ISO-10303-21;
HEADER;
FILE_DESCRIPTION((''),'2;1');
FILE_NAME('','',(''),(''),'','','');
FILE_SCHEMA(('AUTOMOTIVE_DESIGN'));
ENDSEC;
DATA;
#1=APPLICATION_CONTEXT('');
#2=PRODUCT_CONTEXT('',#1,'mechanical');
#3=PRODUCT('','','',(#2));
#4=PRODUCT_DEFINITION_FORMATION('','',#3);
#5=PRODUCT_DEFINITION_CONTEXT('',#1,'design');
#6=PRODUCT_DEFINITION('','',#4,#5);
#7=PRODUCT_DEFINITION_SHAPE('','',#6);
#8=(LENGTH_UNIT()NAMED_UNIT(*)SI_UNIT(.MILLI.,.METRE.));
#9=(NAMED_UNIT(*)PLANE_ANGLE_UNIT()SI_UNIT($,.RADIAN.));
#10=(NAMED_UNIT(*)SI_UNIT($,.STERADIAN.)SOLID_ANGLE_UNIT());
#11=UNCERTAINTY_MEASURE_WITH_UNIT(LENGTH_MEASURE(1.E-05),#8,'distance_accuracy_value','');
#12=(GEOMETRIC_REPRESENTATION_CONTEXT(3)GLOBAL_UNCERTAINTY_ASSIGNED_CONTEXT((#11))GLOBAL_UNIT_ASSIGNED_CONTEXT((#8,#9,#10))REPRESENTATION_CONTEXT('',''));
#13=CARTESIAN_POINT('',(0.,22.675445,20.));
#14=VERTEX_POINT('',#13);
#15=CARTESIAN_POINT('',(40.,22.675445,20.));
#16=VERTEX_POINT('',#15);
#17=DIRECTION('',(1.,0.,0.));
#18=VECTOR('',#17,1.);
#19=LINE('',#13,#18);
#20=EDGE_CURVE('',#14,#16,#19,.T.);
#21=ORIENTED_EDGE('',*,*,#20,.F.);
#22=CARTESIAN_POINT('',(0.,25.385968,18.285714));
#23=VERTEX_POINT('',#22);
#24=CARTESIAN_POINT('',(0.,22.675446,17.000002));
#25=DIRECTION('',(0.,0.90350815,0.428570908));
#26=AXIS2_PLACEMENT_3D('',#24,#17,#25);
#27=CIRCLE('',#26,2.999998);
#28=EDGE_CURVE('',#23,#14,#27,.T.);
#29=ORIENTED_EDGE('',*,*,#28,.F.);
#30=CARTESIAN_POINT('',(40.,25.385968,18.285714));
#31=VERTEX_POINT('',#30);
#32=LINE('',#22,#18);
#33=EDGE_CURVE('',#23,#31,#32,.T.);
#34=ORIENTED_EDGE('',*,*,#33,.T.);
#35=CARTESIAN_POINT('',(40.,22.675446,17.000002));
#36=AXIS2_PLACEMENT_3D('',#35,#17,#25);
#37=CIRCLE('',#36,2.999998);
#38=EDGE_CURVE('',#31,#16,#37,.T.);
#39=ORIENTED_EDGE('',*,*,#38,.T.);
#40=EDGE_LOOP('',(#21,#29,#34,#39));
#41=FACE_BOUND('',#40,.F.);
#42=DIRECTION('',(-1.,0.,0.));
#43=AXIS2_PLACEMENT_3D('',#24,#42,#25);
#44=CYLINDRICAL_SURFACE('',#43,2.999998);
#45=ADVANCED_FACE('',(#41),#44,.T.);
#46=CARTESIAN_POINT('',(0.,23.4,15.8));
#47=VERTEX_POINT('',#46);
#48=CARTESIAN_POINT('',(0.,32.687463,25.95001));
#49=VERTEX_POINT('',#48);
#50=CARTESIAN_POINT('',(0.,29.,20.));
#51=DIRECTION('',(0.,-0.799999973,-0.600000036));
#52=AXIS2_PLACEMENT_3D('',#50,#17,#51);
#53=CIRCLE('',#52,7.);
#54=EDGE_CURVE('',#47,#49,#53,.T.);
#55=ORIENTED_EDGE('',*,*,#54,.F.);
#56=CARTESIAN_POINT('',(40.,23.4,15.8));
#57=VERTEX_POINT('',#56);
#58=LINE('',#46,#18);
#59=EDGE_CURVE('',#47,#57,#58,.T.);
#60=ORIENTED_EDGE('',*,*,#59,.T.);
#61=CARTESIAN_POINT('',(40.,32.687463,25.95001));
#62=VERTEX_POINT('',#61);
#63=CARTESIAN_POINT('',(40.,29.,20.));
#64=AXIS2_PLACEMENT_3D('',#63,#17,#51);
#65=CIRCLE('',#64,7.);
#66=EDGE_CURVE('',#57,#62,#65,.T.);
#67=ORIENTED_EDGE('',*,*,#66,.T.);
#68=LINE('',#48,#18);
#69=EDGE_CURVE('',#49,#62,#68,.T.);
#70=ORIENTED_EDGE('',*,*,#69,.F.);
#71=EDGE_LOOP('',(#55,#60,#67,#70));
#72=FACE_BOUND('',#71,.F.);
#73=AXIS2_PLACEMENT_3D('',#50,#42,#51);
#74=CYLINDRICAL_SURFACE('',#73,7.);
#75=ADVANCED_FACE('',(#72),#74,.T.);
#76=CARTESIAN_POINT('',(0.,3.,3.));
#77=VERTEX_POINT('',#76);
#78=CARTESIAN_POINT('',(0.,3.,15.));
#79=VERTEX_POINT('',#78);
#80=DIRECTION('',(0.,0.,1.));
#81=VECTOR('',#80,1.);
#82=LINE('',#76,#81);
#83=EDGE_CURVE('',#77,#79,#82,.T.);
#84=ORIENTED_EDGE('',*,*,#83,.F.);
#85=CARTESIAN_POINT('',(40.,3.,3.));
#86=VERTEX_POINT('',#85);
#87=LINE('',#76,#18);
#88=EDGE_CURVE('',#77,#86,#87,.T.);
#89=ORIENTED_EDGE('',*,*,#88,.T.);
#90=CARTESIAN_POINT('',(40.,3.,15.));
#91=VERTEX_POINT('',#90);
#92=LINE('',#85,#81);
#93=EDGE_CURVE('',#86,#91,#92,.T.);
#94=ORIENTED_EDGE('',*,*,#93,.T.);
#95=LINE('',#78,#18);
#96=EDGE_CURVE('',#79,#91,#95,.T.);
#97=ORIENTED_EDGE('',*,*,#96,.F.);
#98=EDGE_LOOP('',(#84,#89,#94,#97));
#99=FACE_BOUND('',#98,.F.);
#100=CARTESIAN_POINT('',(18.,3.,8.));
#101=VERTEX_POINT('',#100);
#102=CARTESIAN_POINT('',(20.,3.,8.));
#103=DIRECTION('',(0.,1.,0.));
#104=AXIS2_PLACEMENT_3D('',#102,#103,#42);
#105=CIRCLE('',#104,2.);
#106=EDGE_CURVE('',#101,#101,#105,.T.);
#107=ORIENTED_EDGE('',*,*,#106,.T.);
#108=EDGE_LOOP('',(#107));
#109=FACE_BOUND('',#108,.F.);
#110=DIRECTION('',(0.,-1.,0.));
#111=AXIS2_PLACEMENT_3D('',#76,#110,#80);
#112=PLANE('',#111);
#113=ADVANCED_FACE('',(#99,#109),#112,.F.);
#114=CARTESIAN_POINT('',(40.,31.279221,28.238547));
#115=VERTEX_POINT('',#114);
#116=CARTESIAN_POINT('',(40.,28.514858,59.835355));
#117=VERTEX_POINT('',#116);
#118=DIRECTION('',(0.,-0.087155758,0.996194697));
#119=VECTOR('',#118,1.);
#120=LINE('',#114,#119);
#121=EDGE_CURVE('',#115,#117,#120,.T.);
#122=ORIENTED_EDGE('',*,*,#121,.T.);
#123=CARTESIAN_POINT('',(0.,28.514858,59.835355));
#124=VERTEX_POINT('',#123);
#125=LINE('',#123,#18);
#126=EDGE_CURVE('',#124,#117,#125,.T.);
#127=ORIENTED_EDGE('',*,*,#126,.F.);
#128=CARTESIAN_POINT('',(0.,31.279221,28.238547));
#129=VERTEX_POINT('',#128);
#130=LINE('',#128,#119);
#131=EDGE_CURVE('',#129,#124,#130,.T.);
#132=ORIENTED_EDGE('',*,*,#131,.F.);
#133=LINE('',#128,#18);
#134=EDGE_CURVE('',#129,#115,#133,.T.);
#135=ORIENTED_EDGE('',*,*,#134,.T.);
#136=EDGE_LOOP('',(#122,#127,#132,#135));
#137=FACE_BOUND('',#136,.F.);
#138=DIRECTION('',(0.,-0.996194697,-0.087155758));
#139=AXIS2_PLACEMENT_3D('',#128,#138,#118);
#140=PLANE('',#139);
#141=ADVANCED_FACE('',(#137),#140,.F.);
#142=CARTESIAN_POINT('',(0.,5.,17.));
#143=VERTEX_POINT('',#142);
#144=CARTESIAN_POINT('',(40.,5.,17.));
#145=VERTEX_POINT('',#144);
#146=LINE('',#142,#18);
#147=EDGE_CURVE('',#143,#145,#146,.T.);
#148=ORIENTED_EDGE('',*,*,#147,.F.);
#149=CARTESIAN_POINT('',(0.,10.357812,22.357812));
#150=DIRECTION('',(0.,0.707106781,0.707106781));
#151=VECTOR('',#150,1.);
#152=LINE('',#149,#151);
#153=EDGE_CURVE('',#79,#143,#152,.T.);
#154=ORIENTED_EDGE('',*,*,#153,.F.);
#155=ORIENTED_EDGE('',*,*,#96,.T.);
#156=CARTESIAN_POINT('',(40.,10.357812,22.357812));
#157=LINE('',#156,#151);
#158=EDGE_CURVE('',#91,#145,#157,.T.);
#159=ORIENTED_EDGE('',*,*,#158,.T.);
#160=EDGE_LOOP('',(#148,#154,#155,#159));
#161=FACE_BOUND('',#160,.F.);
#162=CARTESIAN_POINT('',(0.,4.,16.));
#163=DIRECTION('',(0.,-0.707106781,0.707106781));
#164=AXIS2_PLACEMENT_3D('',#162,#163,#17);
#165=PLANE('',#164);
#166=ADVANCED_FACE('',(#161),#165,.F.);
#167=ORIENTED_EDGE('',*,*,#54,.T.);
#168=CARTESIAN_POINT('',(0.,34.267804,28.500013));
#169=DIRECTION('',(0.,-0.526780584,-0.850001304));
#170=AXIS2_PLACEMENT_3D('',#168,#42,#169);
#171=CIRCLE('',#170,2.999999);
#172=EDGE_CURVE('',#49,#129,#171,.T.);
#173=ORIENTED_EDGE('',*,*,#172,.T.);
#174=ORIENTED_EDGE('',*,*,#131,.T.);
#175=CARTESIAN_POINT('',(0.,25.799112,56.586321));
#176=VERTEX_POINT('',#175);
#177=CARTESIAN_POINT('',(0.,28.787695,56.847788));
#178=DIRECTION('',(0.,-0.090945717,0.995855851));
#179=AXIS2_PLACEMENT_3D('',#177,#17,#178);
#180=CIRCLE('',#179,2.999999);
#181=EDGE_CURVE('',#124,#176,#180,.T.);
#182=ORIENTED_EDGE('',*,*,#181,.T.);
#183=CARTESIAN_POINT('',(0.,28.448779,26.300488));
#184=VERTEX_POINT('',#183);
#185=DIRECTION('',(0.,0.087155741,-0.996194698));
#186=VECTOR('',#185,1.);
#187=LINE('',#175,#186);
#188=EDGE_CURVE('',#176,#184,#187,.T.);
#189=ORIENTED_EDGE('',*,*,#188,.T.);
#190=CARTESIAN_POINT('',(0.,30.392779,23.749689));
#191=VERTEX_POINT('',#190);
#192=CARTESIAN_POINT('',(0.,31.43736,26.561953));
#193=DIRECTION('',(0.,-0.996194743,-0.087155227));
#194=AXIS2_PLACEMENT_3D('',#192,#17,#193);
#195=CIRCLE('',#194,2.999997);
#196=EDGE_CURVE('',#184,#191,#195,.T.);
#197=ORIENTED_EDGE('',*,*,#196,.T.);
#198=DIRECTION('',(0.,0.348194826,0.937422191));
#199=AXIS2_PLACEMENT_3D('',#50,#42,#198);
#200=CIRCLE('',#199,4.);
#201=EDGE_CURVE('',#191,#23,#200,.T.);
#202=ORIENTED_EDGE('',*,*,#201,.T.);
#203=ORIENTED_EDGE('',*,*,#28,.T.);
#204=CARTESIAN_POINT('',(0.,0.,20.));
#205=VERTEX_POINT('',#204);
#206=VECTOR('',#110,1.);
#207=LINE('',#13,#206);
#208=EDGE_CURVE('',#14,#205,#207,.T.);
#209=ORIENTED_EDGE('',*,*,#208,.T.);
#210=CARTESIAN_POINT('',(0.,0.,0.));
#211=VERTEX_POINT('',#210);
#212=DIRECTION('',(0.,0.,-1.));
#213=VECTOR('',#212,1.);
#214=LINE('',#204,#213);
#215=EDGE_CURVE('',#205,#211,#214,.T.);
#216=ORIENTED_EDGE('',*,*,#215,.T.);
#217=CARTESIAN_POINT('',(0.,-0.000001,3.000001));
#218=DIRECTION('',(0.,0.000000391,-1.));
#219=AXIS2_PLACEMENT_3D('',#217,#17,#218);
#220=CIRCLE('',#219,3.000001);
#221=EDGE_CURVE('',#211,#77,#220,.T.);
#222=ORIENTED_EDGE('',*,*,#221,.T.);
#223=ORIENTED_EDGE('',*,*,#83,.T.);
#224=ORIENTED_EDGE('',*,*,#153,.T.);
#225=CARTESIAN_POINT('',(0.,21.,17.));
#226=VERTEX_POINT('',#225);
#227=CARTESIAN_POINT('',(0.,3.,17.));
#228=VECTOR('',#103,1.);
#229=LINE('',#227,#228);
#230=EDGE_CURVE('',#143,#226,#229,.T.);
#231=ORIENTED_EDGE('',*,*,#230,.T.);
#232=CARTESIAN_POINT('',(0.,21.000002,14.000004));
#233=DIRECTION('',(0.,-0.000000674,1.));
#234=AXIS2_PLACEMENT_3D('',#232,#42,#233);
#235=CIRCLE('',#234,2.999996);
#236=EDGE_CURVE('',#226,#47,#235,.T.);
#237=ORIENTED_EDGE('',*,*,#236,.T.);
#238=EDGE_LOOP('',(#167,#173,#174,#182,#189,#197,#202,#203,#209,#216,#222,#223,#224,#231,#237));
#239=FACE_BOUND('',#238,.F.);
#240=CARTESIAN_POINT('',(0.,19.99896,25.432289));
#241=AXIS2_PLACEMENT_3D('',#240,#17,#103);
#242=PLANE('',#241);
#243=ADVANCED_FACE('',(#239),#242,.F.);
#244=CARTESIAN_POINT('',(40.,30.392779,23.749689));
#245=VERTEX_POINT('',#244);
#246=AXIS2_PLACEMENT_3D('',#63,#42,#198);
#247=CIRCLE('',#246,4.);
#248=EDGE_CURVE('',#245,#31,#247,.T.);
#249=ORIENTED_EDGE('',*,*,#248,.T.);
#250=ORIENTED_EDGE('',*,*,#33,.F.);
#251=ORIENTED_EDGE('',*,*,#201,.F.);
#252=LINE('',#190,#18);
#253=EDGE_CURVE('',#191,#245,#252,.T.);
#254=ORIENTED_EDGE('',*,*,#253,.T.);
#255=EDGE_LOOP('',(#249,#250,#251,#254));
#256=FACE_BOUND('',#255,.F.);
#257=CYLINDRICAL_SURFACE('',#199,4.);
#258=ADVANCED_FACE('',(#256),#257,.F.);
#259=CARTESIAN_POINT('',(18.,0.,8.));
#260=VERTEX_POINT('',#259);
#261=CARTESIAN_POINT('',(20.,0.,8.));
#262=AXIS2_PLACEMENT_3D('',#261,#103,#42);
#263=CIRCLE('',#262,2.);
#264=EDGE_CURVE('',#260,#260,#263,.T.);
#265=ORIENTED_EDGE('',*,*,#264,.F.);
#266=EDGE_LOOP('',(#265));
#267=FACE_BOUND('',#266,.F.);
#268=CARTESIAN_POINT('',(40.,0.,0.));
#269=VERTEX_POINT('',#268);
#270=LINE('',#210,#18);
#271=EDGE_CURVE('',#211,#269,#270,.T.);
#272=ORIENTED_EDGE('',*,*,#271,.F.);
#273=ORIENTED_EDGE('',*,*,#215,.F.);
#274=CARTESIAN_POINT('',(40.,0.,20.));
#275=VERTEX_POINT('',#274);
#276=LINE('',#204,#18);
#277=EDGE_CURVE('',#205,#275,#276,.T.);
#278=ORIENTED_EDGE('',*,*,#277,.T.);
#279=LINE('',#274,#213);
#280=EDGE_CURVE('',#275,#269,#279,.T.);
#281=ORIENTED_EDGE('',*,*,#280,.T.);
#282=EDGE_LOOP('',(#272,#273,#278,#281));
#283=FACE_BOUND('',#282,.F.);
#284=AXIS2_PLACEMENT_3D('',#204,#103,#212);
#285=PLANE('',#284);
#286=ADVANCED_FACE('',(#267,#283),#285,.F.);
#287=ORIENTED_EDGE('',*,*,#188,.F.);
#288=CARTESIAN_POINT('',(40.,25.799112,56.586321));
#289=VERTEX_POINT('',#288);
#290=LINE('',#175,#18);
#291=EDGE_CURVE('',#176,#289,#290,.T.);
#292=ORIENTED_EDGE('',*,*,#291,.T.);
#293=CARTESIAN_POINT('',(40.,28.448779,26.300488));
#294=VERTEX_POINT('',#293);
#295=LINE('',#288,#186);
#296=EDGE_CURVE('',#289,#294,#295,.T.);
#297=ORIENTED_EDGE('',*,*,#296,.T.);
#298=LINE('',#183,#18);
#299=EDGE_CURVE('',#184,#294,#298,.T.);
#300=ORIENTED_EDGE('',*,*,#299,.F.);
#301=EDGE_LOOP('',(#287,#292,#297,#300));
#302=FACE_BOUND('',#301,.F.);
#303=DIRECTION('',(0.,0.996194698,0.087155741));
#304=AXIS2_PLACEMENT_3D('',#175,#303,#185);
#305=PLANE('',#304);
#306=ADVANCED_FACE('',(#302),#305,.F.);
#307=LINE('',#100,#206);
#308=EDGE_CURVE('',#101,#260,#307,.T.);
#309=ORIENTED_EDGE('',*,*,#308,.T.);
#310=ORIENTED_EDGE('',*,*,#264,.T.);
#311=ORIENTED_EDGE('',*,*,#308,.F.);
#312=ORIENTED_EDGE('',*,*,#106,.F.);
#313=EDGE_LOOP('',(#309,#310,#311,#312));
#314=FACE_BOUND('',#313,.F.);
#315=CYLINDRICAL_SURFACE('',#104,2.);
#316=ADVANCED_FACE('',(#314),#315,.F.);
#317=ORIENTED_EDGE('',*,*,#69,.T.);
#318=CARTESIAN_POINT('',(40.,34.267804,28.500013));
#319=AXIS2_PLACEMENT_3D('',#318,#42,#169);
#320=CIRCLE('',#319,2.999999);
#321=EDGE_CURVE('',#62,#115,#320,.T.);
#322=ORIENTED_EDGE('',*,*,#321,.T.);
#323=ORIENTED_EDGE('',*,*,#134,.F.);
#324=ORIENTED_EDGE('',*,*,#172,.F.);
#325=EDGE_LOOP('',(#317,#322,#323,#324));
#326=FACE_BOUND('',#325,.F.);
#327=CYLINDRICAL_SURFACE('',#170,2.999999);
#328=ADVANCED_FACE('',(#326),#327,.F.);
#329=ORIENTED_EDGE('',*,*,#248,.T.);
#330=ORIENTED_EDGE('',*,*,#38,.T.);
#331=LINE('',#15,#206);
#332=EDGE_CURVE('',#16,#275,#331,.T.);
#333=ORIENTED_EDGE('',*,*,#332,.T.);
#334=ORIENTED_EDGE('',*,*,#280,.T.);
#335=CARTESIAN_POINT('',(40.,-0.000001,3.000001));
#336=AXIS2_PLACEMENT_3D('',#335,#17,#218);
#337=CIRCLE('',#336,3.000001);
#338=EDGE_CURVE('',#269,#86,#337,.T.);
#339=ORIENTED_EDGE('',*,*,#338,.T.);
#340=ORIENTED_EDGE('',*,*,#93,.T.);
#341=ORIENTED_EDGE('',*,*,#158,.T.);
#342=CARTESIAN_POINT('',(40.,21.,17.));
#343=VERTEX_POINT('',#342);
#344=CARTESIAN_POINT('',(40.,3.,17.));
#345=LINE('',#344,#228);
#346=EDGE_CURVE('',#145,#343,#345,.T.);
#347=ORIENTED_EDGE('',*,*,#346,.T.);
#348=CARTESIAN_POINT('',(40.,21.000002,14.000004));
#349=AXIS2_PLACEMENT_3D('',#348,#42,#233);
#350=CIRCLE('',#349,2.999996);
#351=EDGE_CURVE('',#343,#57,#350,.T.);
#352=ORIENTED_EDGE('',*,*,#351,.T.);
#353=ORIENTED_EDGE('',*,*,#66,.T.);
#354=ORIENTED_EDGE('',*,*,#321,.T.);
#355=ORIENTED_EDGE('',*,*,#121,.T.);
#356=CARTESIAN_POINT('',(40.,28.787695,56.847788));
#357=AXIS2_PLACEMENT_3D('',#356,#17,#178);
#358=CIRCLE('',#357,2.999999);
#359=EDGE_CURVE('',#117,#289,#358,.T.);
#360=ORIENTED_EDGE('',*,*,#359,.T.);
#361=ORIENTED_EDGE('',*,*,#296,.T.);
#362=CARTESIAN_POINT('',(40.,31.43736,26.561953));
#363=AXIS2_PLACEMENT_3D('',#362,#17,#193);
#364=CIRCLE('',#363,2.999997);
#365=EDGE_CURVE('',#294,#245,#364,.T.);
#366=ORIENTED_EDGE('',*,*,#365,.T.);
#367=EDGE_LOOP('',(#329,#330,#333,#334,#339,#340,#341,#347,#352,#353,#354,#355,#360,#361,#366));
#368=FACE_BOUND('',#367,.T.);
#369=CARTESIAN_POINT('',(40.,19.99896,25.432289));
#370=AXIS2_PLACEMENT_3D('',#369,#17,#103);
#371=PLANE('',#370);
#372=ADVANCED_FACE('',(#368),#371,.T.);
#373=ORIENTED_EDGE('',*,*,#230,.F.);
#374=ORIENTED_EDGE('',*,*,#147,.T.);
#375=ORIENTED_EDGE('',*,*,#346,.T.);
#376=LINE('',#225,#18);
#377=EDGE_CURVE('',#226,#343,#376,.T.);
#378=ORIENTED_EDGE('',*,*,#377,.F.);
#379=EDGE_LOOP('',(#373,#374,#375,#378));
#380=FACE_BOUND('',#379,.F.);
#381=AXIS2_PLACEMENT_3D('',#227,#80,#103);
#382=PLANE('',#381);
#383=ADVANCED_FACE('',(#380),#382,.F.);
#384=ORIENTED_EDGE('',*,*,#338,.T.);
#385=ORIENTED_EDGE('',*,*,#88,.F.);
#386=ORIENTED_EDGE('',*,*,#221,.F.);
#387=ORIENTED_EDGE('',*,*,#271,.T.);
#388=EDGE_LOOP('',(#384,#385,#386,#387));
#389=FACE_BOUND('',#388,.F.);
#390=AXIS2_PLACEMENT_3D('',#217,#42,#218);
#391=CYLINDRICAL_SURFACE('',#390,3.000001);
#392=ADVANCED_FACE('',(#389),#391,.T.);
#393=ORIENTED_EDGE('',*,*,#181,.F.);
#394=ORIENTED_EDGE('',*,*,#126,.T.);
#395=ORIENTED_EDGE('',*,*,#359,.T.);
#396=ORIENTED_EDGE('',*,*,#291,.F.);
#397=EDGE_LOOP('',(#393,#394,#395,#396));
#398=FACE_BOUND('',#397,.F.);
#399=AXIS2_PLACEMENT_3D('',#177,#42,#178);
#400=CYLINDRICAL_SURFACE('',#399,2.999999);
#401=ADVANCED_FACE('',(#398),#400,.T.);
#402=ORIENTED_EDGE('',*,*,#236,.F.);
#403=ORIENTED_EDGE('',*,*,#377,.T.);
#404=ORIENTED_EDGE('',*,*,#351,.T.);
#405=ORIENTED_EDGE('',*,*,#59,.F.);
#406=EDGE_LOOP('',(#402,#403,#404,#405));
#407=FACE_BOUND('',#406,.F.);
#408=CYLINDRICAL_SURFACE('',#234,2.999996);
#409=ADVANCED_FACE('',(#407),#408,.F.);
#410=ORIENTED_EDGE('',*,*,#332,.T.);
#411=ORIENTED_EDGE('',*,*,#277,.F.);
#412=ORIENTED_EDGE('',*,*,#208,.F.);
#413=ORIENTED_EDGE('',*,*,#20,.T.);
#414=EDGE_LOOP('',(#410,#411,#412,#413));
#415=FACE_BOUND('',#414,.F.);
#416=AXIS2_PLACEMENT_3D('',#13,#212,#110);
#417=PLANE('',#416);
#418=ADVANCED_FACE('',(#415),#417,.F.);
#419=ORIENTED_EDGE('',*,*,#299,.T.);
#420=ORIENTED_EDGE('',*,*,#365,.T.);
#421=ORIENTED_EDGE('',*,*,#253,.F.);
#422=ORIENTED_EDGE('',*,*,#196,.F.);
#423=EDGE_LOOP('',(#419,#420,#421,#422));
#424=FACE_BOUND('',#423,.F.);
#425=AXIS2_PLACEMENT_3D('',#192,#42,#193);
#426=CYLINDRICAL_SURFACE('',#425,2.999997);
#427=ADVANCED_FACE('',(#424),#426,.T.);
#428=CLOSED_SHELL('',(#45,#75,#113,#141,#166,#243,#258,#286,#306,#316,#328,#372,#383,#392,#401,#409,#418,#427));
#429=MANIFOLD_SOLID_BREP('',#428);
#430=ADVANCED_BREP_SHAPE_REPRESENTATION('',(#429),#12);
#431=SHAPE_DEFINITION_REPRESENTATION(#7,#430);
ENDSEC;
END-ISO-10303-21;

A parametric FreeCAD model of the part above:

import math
import FreeCAD as App
import Part
import Sketcher

V = App.Vector
Q = App.Units.Quantity


def edges_at(feature, points):
    """Names of the edges that pass closest to the given points."""
    edges = feature.Shape.Edges
    near = lambda p: min(range(len(edges)), key=lambda i: edges[i].distToShape(Part.Vertex(*p))[0])
    return sorted({f"Edge{near(p) + 1}" for p in points})

doc = App.newDocument("Part")
params = doc.addObject("Spreadsheet::Sheet", "Params")
for row, (alias, value) in enumerate([
    ("sketch1_radius", "3.000001 mm"),
    ("sketch1_radius2", "7 mm"),
    ("sketch1_radius3", "2.999999 mm"),
    ("sketch1_radius4", "4 mm"),
    ("sketch1_width", "18 mm"),
    ("pad1_length", "40 mm"),
    ("sketch2_diameter", "4 mm"),
    ("pocket1_length", "9.6 mm"),
    ("chamfer_size", "2 mm"),
], start=1):
    params.set(f"A{row}", alias)
    params.set(f"B{row}", "=" + value)
    params.setAlias(f"B{row}", alias)

body = doc.addObject("PartDesign::Body", "Body")

# Sketch on YZ plane
sketch1 = body.newObject("Sketcher::SketchObject", "Sketch")
sketch1.AttachmentSupport = (doc.getObject("YZ_Plane"), [""])
sketch1.MapMode = "FlatFace"
sketch1.addGeometry([
    Part.LineSegment(V(0, 20, 0), V(0, 0, 0)),  # 0
    Part.ArcOfCircle(Part.Circle(V(0, 3, 0), V(0, 0, 1), 3), math.radians(-90), math.radians(0)),  # 1
    Part.LineSegment(V(3, 3, 0), V(3, 17, 0)),  # 2
    Part.LineSegment(V(3, 17, 0), V(21, 17, 0)),  # 3
    Part.ArcOfCircle(Part.Circle(V(21, 14, 0), V(0, 0, 1), 3), math.radians(37), math.radians(90)),  # 4
    Part.ArcOfCircle(Part.Circle(V(29, 20, 0), V(0, 0, 1), 7), math.radians(-143), math.radians(58)),  # 5
    Part.ArcOfCircle(Part.Circle(V(34.3, 28.5, 0), V(0, 0, 1), 3), math.radians(-175), math.radians(-122)),  # 6
    Part.LineSegment(V(31.3, 28.2, 0), V(28.5, 59.8, 0)),  # 7
    Part.ArcOfCircle(Part.Circle(V(28.8, 56.8, 0), V(0, 0, 1), 3), math.radians(95), math.radians(185)),  # 8
    Part.LineSegment(V(25.8, 56.6, 0), V(28.4, 26.3, 0)),  # 9
    Part.ArcOfCircle(Part.Circle(V(31.4, 26.6, 0), V(0, 0, 1), 3), math.radians(-175), math.radians(-110)),  # 10
    Part.ArcOfCircle(Part.Circle(V(29, 20, 0), V(0, 0, 1), 4), math.radians(-155), math.radians(70)),  # 11
    Part.ArcOfCircle(Part.Circle(V(22.7, 17, 0), V(0, 0, 1), 3), math.radians(25), math.radians(90)),  # 12
    Part.LineSegment(V(22.7, 20, 0), V(0, 20, 0)),  # 13
], False)
sketch1.addConstraint([
    Sketcher.Constraint("Coincident", 0, 2, 1, 1),
    Sketcher.Constraint("Tangent", 1, 2, 2, 1),
    Sketcher.Constraint("Coincident", 2, 2, 3, 1),
    Sketcher.Constraint("Tangent", 3, 2, 4, 2),
    Sketcher.Constraint("Tangent", 4, 1, 5, 1),
    Sketcher.Constraint("Tangent", 5, 2, 6, 2),
    Sketcher.Constraint("Tangent", 6, 1, 7, 1),
    Sketcher.Constraint("Coincident", 7, 2, 8, 1),
    Sketcher.Constraint("Tangent", 8, 2, 9, 1),
    Sketcher.Constraint("Tangent", 9, 2, 10, 1),
    Sketcher.Constraint("Tangent", 10, 2, 11, 2),
    Sketcher.Constraint("Tangent", 11, 1, 12, 1),
    Sketcher.Constraint("Tangent", 12, 2, 13, 1),
    Sketcher.Constraint("Coincident", 13, 2, 0, 1),
    Sketcher.Constraint("Vertical", 0),
    Sketcher.Constraint("Vertical", 2),
    Sketcher.Constraint("Horizontal", 3),
    Sketcher.Constraint("Horizontal", 13),
    Sketcher.Constraint("Coincident", 0, 2, -1, 1),
    Sketcher.Constraint("Coincident", 11, 3, 5, 3),
    Sketcher.Constraint("Equal", 6, 8),
    Sketcher.Constraint("Equal", 4, 10),
    Sketcher.Constraint("Equal", 10, 12),
    Sketcher.Constraint("PointOnObject", 1, 3, -2),
    Sketcher.Constraint("Parallel", 7, 9),
    Sketcher.Constraint("Horizontal", 11, 3, 12, 2),
    Sketcher.Constraint("Radius", 1, Q("3.000001 mm")),
    Sketcher.Constraint("Radius", 5, Q("7 mm")),
    Sketcher.Constraint("Radius", 6, Q("2.999999 mm")),
    Sketcher.Constraint("Radius", 11, Q("4 mm")),
    Sketcher.Constraint("DistanceX", 3, 1, 3, 2, Q("18 mm")),
    Sketcher.Constraint("DistanceY", 0, 2, 0, 1, Q("20 mm")),
    Sketcher.Constraint("DistanceY", 2, 1, 2, 2, Q("14 mm")),
    Sketcher.Constraint("Angle", 7, Q("95.000001 deg")),
    Sketcher.Constraint("DistanceX", -1, 1, 5, 3, Q("29 mm")),
    Sketcher.Constraint("DistanceX", 9, 2, 10, 2, Q("1.944 mm")),
    Sketcher.Constraint("DistanceX", 7, 2, 10, 3, Q("2.922502 mm")),
    Sketcher.Constraint("DistanceY", 10, 3, 7, 2, Q("33.273402 mm")),
])
sketch1.setExpression("Constraints[26]", "Params.sketch1_radius")
sketch1.setExpression("Constraints[27]", "Params.sketch1_radius2")
sketch1.setExpression("Constraints[28]", "Params.sketch1_radius3")
sketch1.setExpression("Constraints[29]", "Params.sketch1_radius4")
sketch1.setExpression("Constraints[30]", "Params.sketch1_width")
pad1 = body.newObject("PartDesign::Pad", "Pad")
pad1.Profile = sketch1
pad1.setExpression("Length", "Params.pad1_length")

# Sketch on XZ plane
sketch2 = body.newObject("Sketcher::SketchObject", "Sketch001")
sketch2.AttachmentSupport = (doc.getObject("XZ_Plane"), [""])
sketch2.MapMode = "FlatFace"
sketch2.AttachmentOffset = App.Placement(V(0, 0, -3), App.Rotation())
sketch2.addGeometry(Part.Circle(V(20, 8, 0), V(0, 0, 1), 2), False)
sketch2.addConstraint([
    Sketcher.Constraint("Diameter", 0, Q("4 mm")),
    Sketcher.Constraint("DistanceX", -1, 1, 0, 3, Q("20 mm")),
    Sketcher.Constraint("DistanceY", -1, 1, 0, 3, Q("8 mm")),
])
sketch2.setExpression("Constraints[0]", "Params.sketch2_diameter")
pocket1 = body.newObject("PartDesign::Pocket", "Pocket")
pocket1.Profile = sketch2
pocket1.setExpression("Length", "Params.pocket1_length")
pocket1.Reversed = True
doc.recompute()

chamfer = body.newObject("PartDesign::Chamfer", "Chamfer")
chamfer.Base = (pocket1, edges_at(pocket1, [(20, 3, 17)]))
chamfer.setExpression("Size", "Params.chamfer_size")

doc.recompute()
